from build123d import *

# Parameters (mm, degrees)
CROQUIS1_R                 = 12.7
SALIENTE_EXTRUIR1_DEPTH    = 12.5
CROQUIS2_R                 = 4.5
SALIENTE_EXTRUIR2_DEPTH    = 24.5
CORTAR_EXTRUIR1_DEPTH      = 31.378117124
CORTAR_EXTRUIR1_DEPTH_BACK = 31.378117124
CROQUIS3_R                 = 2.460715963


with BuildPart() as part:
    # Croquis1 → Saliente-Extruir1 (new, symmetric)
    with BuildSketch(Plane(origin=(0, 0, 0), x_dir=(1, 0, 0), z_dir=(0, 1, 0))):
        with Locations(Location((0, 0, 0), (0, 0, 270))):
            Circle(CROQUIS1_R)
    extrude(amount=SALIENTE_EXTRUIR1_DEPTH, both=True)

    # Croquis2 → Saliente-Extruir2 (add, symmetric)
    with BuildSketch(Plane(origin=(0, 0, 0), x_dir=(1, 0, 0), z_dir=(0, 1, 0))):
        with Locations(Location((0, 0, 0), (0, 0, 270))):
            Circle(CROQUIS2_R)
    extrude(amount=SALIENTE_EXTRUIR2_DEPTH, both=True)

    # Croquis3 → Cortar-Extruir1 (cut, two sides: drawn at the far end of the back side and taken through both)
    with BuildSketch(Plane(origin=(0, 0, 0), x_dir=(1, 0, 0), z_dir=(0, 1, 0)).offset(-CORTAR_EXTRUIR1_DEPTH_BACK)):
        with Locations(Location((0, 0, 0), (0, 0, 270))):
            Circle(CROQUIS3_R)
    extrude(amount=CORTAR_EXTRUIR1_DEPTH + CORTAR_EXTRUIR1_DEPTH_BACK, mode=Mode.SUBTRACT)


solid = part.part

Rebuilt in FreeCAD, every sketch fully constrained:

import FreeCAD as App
import Part
import Sketcher

V = App.Vector

doc = App.newDocument("Part")
body = doc.addObject("PartDesign::Body", "Body")

# Sketch on XZ plane
sketch1 = body.newObject("Sketcher::SketchObject", "Sketch")
sketch1.AttachmentSupport = (doc.getObject("XZ_Plane"), [""])
sketch1.MapMode = "FlatFace"
sketch1.addGeometry(Part.Circle(V(0, 0, 0), V(0, 0, 1), 13), False)
sketch1.addConstraint([
    Sketcher.Constraint("Coincident", 0, 3, -1, 1),
    Sketcher.Constraint("Diameter", 0, 25.4),
])
pad1 = body.newObject("PartDesign::Pad", "Pad")
pad1.Profile = sketch1
pad1.Length = 25
pad1.Midplane = True

# Sketch on XZ plane
sketch2 = body.newObject("Sketcher::SketchObject", "Sketch001")
sketch2.AttachmentSupport = (doc.getObject("XZ_Plane"), [""])
sketch2.MapMode = "FlatFace"
sketch2.addGeometry(Part.Circle(V(0, 0, 0), V(0, 0, 1), 4.5), False)
sketch2.addConstraint([
    Sketcher.Constraint("Coincident", 0, 3, -1, 1),
    Sketcher.Constraint("Diameter", 0, 9.0),
])
pad2 = body.newObject("PartDesign::Pad", "Pad001")
pad2.Profile = sketch2
pad2.Length = 49
pad2.Midplane = True

# Sketch on XZ plane
sketch3 = body.newObject("Sketcher::SketchObject", "Sketch002")
sketch3.AttachmentSupport = (doc.getObject("XZ_Plane"), [""])
sketch3.MapMode = "FlatFace"
sketch3.addGeometry(Part.Circle(V(0, 0, 0), V(0, 0, 1), 2.5), False)
sketch3.addConstraint([
    Sketcher.Constraint("Coincident", 0, 3, -1, 1),
    Sketcher.Constraint("Diameter", 0, 4.921432),
])
pocket1 = body.newObject("PartDesign::Pocket", "Pocket")
pocket1.Profile = sketch3
pocket1.Type = "ThroughAll"
pocket1.Midplane = True

doc.recompute()
